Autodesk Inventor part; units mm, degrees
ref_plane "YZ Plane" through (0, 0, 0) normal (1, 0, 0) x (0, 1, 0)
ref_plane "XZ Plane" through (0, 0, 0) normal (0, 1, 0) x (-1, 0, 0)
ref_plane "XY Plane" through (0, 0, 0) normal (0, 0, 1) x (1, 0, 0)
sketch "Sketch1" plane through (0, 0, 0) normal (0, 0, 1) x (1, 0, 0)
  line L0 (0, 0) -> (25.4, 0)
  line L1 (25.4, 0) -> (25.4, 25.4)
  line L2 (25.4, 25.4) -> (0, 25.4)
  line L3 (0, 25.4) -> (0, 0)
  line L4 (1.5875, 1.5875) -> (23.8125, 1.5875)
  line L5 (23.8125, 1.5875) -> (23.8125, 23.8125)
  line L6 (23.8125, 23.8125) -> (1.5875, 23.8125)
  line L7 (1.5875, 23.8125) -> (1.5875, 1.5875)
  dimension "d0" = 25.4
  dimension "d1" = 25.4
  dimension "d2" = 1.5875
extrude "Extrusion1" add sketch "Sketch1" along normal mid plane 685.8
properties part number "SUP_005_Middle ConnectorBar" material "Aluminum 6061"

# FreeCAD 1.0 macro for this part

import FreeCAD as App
import Part
import Sketcher
from FreeCAD import Vector
Q = App.Units.Quantity

doc = App.newDocument("Part")
body = doc.addObject("PartDesign::Body", "Body")

sketch1 = body.newObject("Sketcher::SketchObject", "Sketch")
sketch1.AttachmentSupport = (doc.getObject("XY_Plane"), [""])
sketch1.MapMode = "FlatFace"
sketch1.addGeometry(Part.LineSegment(Vector(0, 25, 0), Vector(0, 0, 0)), False)
sketch1.addGeometry(Part.LineSegment(Vector(0, 0, 0), Vector(25, 0, 0)), False)
sketch1.addGeometry(Part.LineSegment(Vector(25, 0, 0), Vector(25, 25, 0)), False)
sketch1.addGeometry(Part.LineSegment(Vector(25, 25, 0), Vector(0, 25, 0)), False)
sketch1.addGeometry(Part.LineSegment(Vector(24, 2, 0), Vector(2, 2, 0)), False)
sketch1.addGeometry(Part.LineSegment(Vector(2, 2, 0), Vector(2, 24, 0)), False)
sketch1.addGeometry(Part.LineSegment(Vector(2, 24, 0), Vector(24, 24, 0)), False)
sketch1.addGeometry(Part.LineSegment(Vector(24, 24, 0), Vector(24, 2, 0)), False)
sketch1.addConstraint(Sketcher.Constraint("Coincident", 0, 2, 1, 1))
sketch1.addConstraint(Sketcher.Constraint("Coincident", 1, 2, 2, 1))
sketch1.addConstraint(Sketcher.Constraint("Coincident", 2, 2, 3, 1))
sketch1.addConstraint(Sketcher.Constraint("Coincident", 3, 2, 0, 1))
sketch1.addConstraint(Sketcher.Constraint("Coincident", 4, 2, 5, 1))
sketch1.addConstraint(Sketcher.Constraint("Coincident", 5, 2, 6, 1))
sketch1.addConstraint(Sketcher.Constraint("Coincident", 6, 2, 7, 1))
sketch1.addConstraint(Sketcher.Constraint("Coincident", 7, 2, 4, 1))
sketch1.addConstraint(Sketcher.Constraint("Vertical", 0))
sketch1.addConstraint(Sketcher.Constraint("Horizontal", 1))
sketch1.addConstraint(Sketcher.Constraint("Vertical", 2))
sketch1.addConstraint(Sketcher.Constraint("Horizontal", 3))
sketch1.addConstraint(Sketcher.Constraint("Horizontal", 4))
sketch1.addConstraint(Sketcher.Constraint("Vertical", 5))
sketch1.addConstraint(Sketcher.Constraint("Horizontal", 6))
sketch1.addConstraint(Sketcher.Constraint("Vertical", 7))
sketch1.addConstraint(Sketcher.Constraint("Coincident", 0, 2, -1, 1))
sketch1.addConstraint(Sketcher.Constraint("Equal", 3, 0))
sketch1.addConstraint(Sketcher.Constraint("Equal", 6, 5))
sketch1.addConstraint(Sketcher.Constraint("DistanceX", 1, 1, 1, 2, Q("1 in")))
sketch1.addConstraint(Sketcher.Constraint("DistanceX", -1, 1, 4, 2, Q("0.0625 in")))
sketch1.addConstraint(Sketcher.Constraint("DistanceY", -1, 1, 4, 2, Q("0.0625 in")))
sketch1.addConstraint(Sketcher.Constraint("DistanceY", 5, 2, 3, 2, Q("0.0625 in")))
pad1 = body.newObject("PartDesign::Pad", "Pad")
pad1.Profile = sketch1
pad1.Length = Q("27 in")
pad1.Midplane = True

doc.recompute()
